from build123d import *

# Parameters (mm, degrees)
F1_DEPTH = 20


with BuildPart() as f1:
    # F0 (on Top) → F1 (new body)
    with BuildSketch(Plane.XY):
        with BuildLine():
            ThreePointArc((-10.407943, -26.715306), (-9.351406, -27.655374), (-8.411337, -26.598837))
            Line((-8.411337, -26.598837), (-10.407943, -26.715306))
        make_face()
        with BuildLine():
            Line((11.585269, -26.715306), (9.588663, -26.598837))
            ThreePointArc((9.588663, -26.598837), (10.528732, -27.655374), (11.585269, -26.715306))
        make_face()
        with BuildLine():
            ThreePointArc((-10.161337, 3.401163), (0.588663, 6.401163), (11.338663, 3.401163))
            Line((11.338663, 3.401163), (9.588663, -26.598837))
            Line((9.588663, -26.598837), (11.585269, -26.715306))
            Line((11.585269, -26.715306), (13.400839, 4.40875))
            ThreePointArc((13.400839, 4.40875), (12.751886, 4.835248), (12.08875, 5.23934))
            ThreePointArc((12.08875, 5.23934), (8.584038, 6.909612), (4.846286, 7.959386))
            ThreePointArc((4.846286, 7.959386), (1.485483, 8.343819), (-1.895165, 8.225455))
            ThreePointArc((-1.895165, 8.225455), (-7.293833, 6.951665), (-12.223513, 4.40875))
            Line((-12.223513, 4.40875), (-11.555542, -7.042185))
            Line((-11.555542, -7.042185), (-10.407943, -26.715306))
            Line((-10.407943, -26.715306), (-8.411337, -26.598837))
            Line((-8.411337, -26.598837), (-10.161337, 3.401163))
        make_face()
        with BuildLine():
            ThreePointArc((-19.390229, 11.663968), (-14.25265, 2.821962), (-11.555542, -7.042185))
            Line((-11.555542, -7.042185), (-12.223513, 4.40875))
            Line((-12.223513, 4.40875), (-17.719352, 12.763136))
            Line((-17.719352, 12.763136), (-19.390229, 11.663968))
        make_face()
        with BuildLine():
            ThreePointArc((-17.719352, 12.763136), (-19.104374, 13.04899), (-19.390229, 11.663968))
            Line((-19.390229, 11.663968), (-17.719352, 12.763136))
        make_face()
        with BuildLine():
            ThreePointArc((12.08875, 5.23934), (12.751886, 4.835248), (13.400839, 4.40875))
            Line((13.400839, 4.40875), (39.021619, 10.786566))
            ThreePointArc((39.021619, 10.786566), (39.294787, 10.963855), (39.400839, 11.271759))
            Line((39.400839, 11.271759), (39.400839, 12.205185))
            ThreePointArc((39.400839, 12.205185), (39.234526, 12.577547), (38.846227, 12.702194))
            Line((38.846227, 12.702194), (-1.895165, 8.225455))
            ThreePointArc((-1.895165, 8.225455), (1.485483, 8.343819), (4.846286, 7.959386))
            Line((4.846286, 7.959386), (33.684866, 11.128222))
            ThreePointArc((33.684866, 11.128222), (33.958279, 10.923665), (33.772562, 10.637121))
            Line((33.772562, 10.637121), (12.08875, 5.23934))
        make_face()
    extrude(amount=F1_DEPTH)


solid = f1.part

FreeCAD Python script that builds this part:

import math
import FreeCAD as App
import Part
import Sketcher
from FreeCAD import Vector

doc = App.newDocument("Part")
body = doc.addObject("PartDesign::Body", "Body")

# Sketch on XY plane
sketch1 = doc.addObject("Sketcher::SketchObject", "Sketch")
body.addObject(sketch1)
sketch1.AttachmentSupport = (doc.XY_Plane, [""])
sketch1.MapMode = "FlatFace"
sketch1.addGeometry([
    Part.ArcOfCircle(Part.Circle(Vector(-9.40964, -26.657071, 0), Vector(0, 0, 1), 1), math.radians(-176.66149), math.radians(3.338449)),  # 0
    Part.LineSegment(Vector(-8.411337, -26.598837, 0), Vector(-10.161337, 3.401163, 0)),  # 1
    Part.ArcOfCircle(Part.Circle(Vector(0.588663, -14.359254, 0), Vector(0, 0, 1), 20.760417), math.radians(58.814378), math.radians(121.185622)),  # 2
    Part.LineSegment(Vector(11.338663, 3.401163, 0), Vector(9.588663, -26.598837, 0)),  # 3
    Part.ArcOfCircle(Part.Circle(Vector(10.586966, -26.657071, 0), Vector(0, 0, 1), 1), math.radians(176.661551), math.radians(356.66149)),  # 4
    Part.LineSegment(Vector(11.585269, -26.715306, 0), Vector(13.400839, 4.40875, 0)),  # 5
    Part.LineSegment(Vector(13.400839, 4.40875, 0), Vector(39.021619, 10.786566, 0)),  # 6
    Part.ArcOfCircle(Part.Circle(Vector(38.900838, 11.271759, 0), Vector(0, 0, 1), 0.500001), math.radians(-76.021324), math.radians(-0.000039)),  # 7
    Part.LineSegment(Vector(39.400839, 11.271759, 0), Vector(39.400839, 12.205185, 0)),  # 8
    Part.ArcOfCircle(Part.Circle(Vector(38.900839, 12.205186, 0), Vector(0, 0, 1), 0.5), math.radians(-0.000089), math.radians(96.270626)),  # 9
    Part.LineSegment(Vector(38.846227, 12.702194, 0), Vector(-1.895165, 8.225455, 0)),  # 10
    Part.ArcOfCircle(Part.Circle(Vector(0.588658, -14.379067, 0), Vector(0, 0, 1), 22.740576), math.radians(96.270601), math.radians(124.291656)),  # 11
    Part.LineSegment(Vector(-12.223513, 4.40875, 0), Vector(-17.719352, 12.763136, 0)),  # 12
    Part.ArcOfCircle(Part.Circle(Vector(-18.55479, 12.213551, 0), Vector(0, 0, 1), 1), math.radians(33.338517), math.radians(213.338437)),  # 13
    Part.ArcOfCircle(Part.Circle(Vector(-50.708324, -12.446746, 0), Vector(0, 0, 1), 39.524038), math.radians(7.859313), math.radians(37.591426)),  # 14
    Part.LineSegment(Vector(-11.555542, -7.042185, 0), Vector(-10.407943, -26.715306, 0)),  # 15
    Part.ArcOfCircle(Part.Circle(Vector(0.588672, -14.379054, 0), Vector(0, 0, 1), 22.740563), math.radians(59.621656), math.radians(79.209086)),  # 16
    Part.LineSegment(Vector(4.846286, 7.959386, 0), Vector(33.684866, 11.128222, 0)),  # 17
    Part.ArcOfCircle(Part.Circle(Vector(33.712172, 10.879718, 0), Vector(0, 0, 1), 0.25), math.radians(-76.021362), math.radians(96.270568)),  # 18
    Part.LineSegment(Vector(33.772562, 10.637121, 0), Vector(12.08875, 5.23934, 0)),  # 19
], False)
sketch1.addConstraint([
    Sketcher.Constraint("Coincident", 0, 2, 1, 1),
    Sketcher.Constraint("Coincident", 1, 2, 2, 2),
    Sketcher.Constraint("Coincident", 2, 1, 3, 1),
    Sketcher.Constraint("Coincident", 3, 2, 4, 1),
    Sketcher.Constraint("Coincident", 4, 2, 5, 1),
    Sketcher.Constraint("Coincident", 5, 2, 6, 1),
    Sketcher.Constraint("Coincident", 6, 2, 7, 1),
    Sketcher.Constraint("Coincident", 7, 2, 8, 1),
    Sketcher.Constraint("Coincident", 8, 2, 9, 1),
    Sketcher.Constraint("Coincident", 9, 2, 10, 1),
    Sketcher.Constraint("Coincident", 10, 2, 11, 1),
    Sketcher.Constraint("Coincident", 11, 2, 12, 1),
    Sketcher.Constraint("Coincident", 12, 2, 13, 1),
    Sketcher.Constraint("Coincident", 13, 2, 14, 2),
    Sketcher.Constraint("Coincident", 14, 1, 15, 1),
    Sketcher.Constraint("Coincident", 15, 2, 0, 1),
    Sketcher.Constraint("Coincident", 16, 2, 17, 1),
    Sketcher.Constraint("Coincident", 17, 2, 18, 2),
    Sketcher.Constraint("Coincident", 18, 1, 19, 1),
    Sketcher.Constraint("Coincident", 19, 2, 16, 1),
    Sketcher.Constraint("Vertical", 8),
    Sketcher.Constraint("Radius", 0, 1.0),
    Sketcher.Constraint("Radius", 4, 1.0),
    Sketcher.Constraint("Radius", 13, 1.0),
    Sketcher.Constraint("Radius", 7, 0.500001),
    Sketcher.Constraint("Radius", 9, 0.5),
    Sketcher.Constraint("Radius", 18, 0.25),
    Sketcher.Constraint("Distance", 12, 10.000001),
    Sketcher.Constraint("DistanceX", 0, 2, 2, 3, 9.0),
    Sketcher.Constraint("DistanceY", 0, 2, 1, 2, 30.0),
    Sketcher.Constraint("DistanceX", 2, 3, 3, 2, 9.0),
    Sketcher.Constraint("DistanceX", 5, 2, 7, 2, 26.0),
    Sketcher.Constraint("DistanceX", 1, 2, 2, 1, 21.5),
    Sketcher.Constraint("Radius", 14, 39.524038),
    Sketcher.Constraint("DistanceX", 1, 2, 2, 3, 10.75),
    Sketcher.Constraint("Distance", 3, 30.050998),
    Sketcher.Constraint("Radius", 2, 20.760417),
    Sketcher.Constraint("Radius", 11, 22.740576),
    Sketcher.Constraint("Radius", 16, 22.740563),
    Sketcher.Constraint("DistanceX", 0, 3, 11, 3, 9.998298),
    Sketcher.Constraint("DistanceY", 16, 3, 2, 3, 0.019801),
    Sketcher.Constraint("DistanceX", 16, 3, 18, 3, 33.1235),
    Sketcher.Constraint("DistanceY", 11, 2, 13, 3, 7.804801),
    Sketcher.Constraint("DistanceX", 14, 1, 11, 3, 12.1442),
    Sketcher.Constraint("DistanceX", 15, 2, 11, 3, 10.996601),
    Sketcher.Constraint("DistanceX", 11, 2, 16, 2, 17.069799),
    Sketcher.Constraint("DistanceY", 18, 1, 17, 2, 0.491101),
    Sketcher.Constraint("Distance", 6, 26.402669),
    Sketcher.Constraint("Distance", 10, 40.98661),
    Sketcher.Constraint("DistanceY", 8, 1, 8, 2, 0.933426),
    Sketcher.Constraint("DistanceX", 0, 3, -1, 1, 9.40964),
    Sketcher.Constraint("DistanceY", 0, 3, -1, 1, 26.657071),
    Sketcher.Constraint("DistanceY", 4, 3, -1, 1, 26.657071),
    Sketcher.Constraint("DistanceX", -1, 1, 7, 3, 38.900838),
    Sketcher.Constraint("DistanceY", -1, 1, 7, 3, 11.271759),
    Sketcher.Constraint("DistanceX", 13, 3, -1, 1, 18.55479),
    Sketcher.Constraint("DistanceY", -1, 1, 13, 3, 12.213551),
    Sketcher.Constraint("DistanceX", -1, 1, 16, 3, 0.588672),
    Sketcher.Constraint("DistanceX", -1, 1, 4, 2, 11.585269),
    Sketcher.Constraint("DistanceY", -1, 1, 5, 2, 4.40875),
    Sketcher.Constraint("DistanceY", -1, 1, 7, 2, 11.271759),
    Sketcher.Constraint("DistanceX", 13, 2, -1, 1, 19.390229),
    Sketcher.Constraint("DistanceY", -1, 1, 17, 2, 11.128222),
    Sketcher.Constraint("DistanceX", -1, 1, 19, 2, 12.08875),
    Sketcher.Constraint("DistanceY", -1, 1, 19, 2, 5.23934),
    Sketcher.Constraint("DistanceY", 2, 3, 9, 3, 26.564439),
    Sketcher.Constraint("DistanceY", 11, 3, 13, 3, 26.592619),
    Sketcher.Constraint("DistanceX", 14, 3, 11, 3, 51.296982),
    Sketcher.Constraint("DistanceY", 18, 3, 7, 3, 0.392042),
    Sketcher.Constraint("DistanceY", 9, 3, 9, 2, 0.497008),
])
pad1 = doc.addObject("PartDesign::Pad", "Pad")
body.addObject(pad1)
pad1.Profile = sketch1
pad1.Length = 20

doc.recompute()
